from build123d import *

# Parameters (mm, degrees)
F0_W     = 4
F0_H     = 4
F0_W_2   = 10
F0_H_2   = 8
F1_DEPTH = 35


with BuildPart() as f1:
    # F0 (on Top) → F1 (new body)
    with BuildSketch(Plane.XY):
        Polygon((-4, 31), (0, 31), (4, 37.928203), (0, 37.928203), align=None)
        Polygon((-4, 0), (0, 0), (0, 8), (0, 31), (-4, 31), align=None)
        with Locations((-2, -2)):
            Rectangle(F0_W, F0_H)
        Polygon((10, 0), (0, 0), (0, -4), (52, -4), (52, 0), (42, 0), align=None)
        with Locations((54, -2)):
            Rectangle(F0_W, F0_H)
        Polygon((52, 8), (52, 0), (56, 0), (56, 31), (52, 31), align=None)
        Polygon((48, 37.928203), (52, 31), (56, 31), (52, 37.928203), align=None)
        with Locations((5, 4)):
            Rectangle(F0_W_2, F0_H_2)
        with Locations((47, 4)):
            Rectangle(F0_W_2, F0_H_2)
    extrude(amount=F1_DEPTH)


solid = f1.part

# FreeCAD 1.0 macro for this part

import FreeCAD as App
import Part
import Sketcher
from FreeCAD import Vector
Q = App.Units.Quantity

doc = App.newDocument("Part")
body = doc.addObject("PartDesign::Body", "Body")

# Sketch on XY plane
sketch1 = doc.addObject("Sketcher::SketchObject", "Sketch")
body.addObject(sketch1)
sketch1.AttachmentSupport = (doc.XY_Plane, [""])
sketch1.MapMode = "FlatFace"
sketch1.addGeometry(Part.LineSegment(Vector(0, 31, 0), Vector(4, 37.928203, 0)), False)
sketch1.addGeometry(Part.LineSegment(Vector(4, 37.928203, 0), Vector(0, 37.928203, 0)), False)
sketch1.addGeometry(Part.LineSegment(Vector(0, 37.928203, 0), Vector(-4, 31, 0)), False)
sketch1.addGeometry(Part.LineSegment(Vector(-4, 31, 0), Vector(-4, -4, 0)), False)
sketch1.addGeometry(Part.LineSegment(Vector(-4, -4, 0), Vector(56, -4, 0)), False)
sketch1.addGeometry(Part.LineSegment(Vector(56, -4, 0), Vector(56, 31, 0)), False)
sketch1.addGeometry(Part.LineSegment(Vector(56, 31, 0), Vector(52, 37.928203, 0)), False)
sketch1.addGeometry(Part.LineSegment(Vector(52, 37.928203, 0), Vector(48, 37.928203, 0)), False)
sketch1.addGeometry(Part.LineSegment(Vector(48, 37.928203, 0), Vector(52, 31, 0)), False)
sketch1.addGeometry(Part.LineSegment(Vector(52, 31, 0), Vector(52, 8, 0)), False)
sketch1.addGeometry(Part.LineSegment(Vector(52, 8, 0), Vector(42, 8, 0)), False)
sketch1.addGeometry(Part.LineSegment(Vector(42, 8, 0), Vector(42, 0, 0)), False)
sketch1.addGeometry(Part.LineSegment(Vector(42, 0, 0), Vector(10, 0, 0)), False)
sketch1.addGeometry(Part.LineSegment(Vector(10, 0, 0), Vector(10, 8, 0)), False)
sketch1.addGeometry(Part.LineSegment(Vector(10, 8, 0), Vector(0, 8, 0)), False)
sketch1.addGeometry(Part.LineSegment(Vector(0, 8, 0), Vector(0, 31, 0)), False)
sketch1.addConstraint(Sketcher.Constraint("Coincident", 0, 2, 1, 1))
sketch1.addConstraint(Sketcher.Constraint("Coincident", 1, 2, 2, 1))
sketch1.addConstraint(Sketcher.Constraint("Coincident", 2, 2, 3, 1))
sketch1.addConstraint(Sketcher.Constraint("Coincident", 3, 2, 4, 1))
sketch1.addConstraint(Sketcher.Constraint("Coincident", 4, 2, 5, 1))
sketch1.addConstraint(Sketcher.Constraint("Coincident", 5, 2, 6, 1))
sketch1.addConstraint(Sketcher.Constraint("Coincident", 6, 2, 7, 1))
sketch1.addConstraint(Sketcher.Constraint("Coincident", 7, 2, 8, 1))
sketch1.addConstraint(Sketcher.Constraint("Coincident", 8, 2, 9, 1))
sketch1.addConstraint(Sketcher.Constraint("Coincident", 9, 2, 10, 1))
sketch1.addConstraint(Sketcher.Constraint("Coincident", 10, 2, 11, 1))
sketch1.addConstraint(Sketcher.Constraint("Coincident", 11, 2, 12, 1))
sketch1.addConstraint(Sketcher.Constraint("Coincident", 12, 2, 13, 1))
sketch1.addConstraint(Sketcher.Constraint("Coincident", 13, 2, 14, 1))
sketch1.addConstraint(Sketcher.Constraint("Coincident", 14, 2, 15, 1))
sketch1.addConstraint(Sketcher.Constraint("Coincident", 15, 2, 0, 1))
sketch1.addConstraint(Sketcher.Constraint("Horizontal", 1))
sketch1.addConstraint(Sketcher.Constraint("Vertical", 3))
sketch1.addConstraint(Sketcher.Constraint("Horizontal", 4))
sketch1.addConstraint(Sketcher.Constraint("Vertical", 5))
sketch1.addConstraint(Sketcher.Constraint("Horizontal", 7))
sketch1.addConstraint(Sketcher.Constraint("Vertical", 9))
sketch1.addConstraint(Sketcher.Constraint("Horizontal", 10))
sketch1.addConstraint(Sketcher.Constraint("Vertical", 11))
sketch1.addConstraint(Sketcher.Constraint("Horizontal", 12))
sketch1.addConstraint(Sketcher.Constraint("Vertical", 13))
sketch1.addConstraint(Sketcher.Constraint("Horizontal", 14))
sketch1.addConstraint(Sketcher.Constraint("Vertical", 15))
sketch1.addConstraint(Sketcher.Constraint("PointOnObject", 1, 2, -2))
sketch1.addConstraint(Sketcher.Constraint("PointOnObject", 11, 2, -1))
sketch1.addConstraint(Sketcher.Constraint("PointOnObject", 14, 2, -2))
sketch1.addConstraint(Sketcher.Constraint("Parallel", 0, 2))
sketch1.addConstraint(Sketcher.Constraint("Parallel", 6, 8))
sketch1.addConstraint(Sketcher.Constraint("Horizontal", 2, 2, 5, 2))
sketch1.addConstraint(Sketcher.Constraint("Horizontal", 1, 2, 6, 2))
sketch1.addConstraint(Sketcher.Constraint("Horizontal", 5, 2, 8, 2))
sketch1.addConstraint(Sketcher.Constraint("Horizontal", 10, 2, 13, 2))
sketch1.addConstraint(Sketcher.Constraint("Horizontal", 8, 2, 15, 2))
sketch1.addConstraint(Sketcher.Constraint("Vertical", 6, 2, 8, 2))
sketch1.addConstraint(Sketcher.Constraint("Equal", 1, 7))
sketch1.addConstraint(Sketcher.Constraint("Equal", 10, 14))
sketch1.addConstraint(Sketcher.Constraint("DistanceX", 1, 2, 1, 1, 4.0))
sketch1.addConstraint(Sketcher.Constraint("DistanceX", 4, 1, 4, 2, 60.0))
sketch1.addConstraint(Sketcher.Constraint("DistanceX", 10, 2, 10, 1, 10.0))
sketch1.addConstraint(Sketcher.Constraint("DistanceY", 3, 2, 3, 1, 35.0))
sketch1.addConstraint(Sketcher.Constraint("DistanceY", 9, 2, 9, 1, 23.0))
sketch1.addConstraint(Sketcher.Constraint("DistanceY", 11, 2, 11, 1, 8.0))
sketch1.addConstraint(Sketcher.Constraint("Angle", 0, Q("59.999999 deg")))
pad1 = doc.addObject("PartDesign::Pad", "Pad")
body.addObject(pad1)
pad1.Profile = sketch1
pad1.Length = 35

doc.recompute()
